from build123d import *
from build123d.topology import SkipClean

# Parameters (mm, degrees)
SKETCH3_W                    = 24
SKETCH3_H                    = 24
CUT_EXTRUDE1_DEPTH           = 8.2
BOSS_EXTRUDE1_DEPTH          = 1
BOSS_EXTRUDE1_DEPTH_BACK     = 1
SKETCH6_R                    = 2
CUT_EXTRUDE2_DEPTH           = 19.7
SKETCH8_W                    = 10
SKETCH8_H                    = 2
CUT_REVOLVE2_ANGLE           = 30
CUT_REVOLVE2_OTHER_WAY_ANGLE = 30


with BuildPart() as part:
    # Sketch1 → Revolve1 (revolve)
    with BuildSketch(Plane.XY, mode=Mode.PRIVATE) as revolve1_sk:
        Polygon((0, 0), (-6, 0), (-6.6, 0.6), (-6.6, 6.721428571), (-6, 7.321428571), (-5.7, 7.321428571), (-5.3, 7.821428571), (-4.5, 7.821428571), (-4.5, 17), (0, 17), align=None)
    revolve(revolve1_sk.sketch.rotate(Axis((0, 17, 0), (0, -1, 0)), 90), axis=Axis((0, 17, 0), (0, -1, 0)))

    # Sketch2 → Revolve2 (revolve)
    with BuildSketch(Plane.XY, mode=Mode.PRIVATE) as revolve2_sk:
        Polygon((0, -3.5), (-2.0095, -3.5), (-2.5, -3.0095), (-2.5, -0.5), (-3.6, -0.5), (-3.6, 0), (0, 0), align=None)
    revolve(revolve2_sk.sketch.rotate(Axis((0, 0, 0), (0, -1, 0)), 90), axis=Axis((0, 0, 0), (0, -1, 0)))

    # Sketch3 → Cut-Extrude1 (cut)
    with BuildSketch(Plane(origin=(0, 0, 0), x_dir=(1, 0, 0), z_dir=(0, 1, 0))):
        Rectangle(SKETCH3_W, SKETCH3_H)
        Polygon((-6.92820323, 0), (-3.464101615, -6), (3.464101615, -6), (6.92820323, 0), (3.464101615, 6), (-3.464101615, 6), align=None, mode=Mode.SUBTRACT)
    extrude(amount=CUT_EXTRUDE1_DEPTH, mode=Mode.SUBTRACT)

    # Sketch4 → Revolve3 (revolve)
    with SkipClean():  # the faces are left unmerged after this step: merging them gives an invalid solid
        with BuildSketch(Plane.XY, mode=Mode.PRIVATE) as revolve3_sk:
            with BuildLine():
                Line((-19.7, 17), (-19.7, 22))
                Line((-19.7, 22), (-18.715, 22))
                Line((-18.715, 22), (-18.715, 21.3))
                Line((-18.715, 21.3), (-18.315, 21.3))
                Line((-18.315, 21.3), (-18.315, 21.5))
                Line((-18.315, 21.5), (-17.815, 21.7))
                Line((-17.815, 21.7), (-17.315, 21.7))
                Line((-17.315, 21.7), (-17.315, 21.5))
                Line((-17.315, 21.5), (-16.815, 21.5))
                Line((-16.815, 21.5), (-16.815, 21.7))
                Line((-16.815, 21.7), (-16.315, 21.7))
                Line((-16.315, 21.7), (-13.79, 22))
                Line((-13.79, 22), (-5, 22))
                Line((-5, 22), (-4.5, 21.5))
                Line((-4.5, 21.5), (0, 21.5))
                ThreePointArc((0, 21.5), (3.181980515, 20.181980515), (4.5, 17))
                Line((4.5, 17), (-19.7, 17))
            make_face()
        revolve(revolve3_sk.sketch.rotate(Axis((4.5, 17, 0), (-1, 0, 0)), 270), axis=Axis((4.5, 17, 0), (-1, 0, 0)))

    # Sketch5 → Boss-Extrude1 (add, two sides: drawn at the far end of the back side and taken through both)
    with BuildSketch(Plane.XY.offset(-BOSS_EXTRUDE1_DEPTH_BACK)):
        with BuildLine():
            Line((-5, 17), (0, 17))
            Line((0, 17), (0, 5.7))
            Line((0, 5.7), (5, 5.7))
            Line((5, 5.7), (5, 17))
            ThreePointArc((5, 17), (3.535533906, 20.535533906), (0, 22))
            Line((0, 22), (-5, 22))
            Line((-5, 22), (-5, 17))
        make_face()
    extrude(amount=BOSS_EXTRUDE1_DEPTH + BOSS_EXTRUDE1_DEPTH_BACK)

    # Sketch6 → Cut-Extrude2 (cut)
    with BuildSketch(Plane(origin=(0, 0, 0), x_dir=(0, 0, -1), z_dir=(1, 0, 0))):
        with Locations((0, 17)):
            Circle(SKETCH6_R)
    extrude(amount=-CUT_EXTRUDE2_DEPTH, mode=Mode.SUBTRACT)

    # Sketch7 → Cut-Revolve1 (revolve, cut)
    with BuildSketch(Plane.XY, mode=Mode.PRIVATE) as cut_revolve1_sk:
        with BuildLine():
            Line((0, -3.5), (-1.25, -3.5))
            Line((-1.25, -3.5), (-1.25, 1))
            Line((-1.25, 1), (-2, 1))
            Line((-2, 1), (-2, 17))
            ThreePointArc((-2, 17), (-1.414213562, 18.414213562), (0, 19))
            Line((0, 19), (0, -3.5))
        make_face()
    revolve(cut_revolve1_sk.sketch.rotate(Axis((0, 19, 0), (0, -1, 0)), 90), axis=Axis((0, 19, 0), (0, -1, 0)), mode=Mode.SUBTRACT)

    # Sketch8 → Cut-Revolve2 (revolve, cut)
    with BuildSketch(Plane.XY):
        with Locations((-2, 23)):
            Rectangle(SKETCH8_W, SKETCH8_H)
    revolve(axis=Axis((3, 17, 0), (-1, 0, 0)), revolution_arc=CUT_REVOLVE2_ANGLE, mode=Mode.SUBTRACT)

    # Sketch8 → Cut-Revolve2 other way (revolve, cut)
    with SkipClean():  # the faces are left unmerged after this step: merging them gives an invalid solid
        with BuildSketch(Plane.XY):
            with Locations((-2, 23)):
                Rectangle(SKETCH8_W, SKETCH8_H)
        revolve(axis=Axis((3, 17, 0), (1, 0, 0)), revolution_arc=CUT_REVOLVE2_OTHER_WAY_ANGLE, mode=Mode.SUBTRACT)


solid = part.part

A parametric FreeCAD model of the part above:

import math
import FreeCAD as App
import Part
import Sketcher
from FreeCAD import Vector
Q = App.Units.Quantity


def add_polygon(sketch, points):
    """Adds a closed chain of lines whose ends are joined by coincident constraints."""
    first, n = sketch.GeometryCount, len(points)
    for a, b in zip(points, points[1:] + points[:1]):
        sketch.addGeometry(Part.LineSegment(App.Vector(*a, 0), App.Vector(*b, 0)), False)
    for i in range(n):
        sketch.addConstraint(Sketcher.Constraint("Coincident", first + i, 2, first + (i + 1) % n, 1))

doc = App.newDocument("Part")
body = doc.addObject("PartDesign::Body", "Body")

sketch1 = body.newObject("Sketcher::SketchObject", "Sketch")
sketch1.AttachmentSupport = (doc.getObject("XY_Plane"), [""])
sketch1.MapMode = "FlatFace"
add_polygon(sketch1, [(-6, 0), (0, 0), (0, 17), (-4.5, 17), (-4.5, 7.821429), (-5.3, 7.821429), (-5.7, 7.321429), (-6, 7.321429), (-6.6, 6.721429), (-6.6, 0.6)])
sketch1.addConstraint([
    Sketcher.Constraint("Horizontal", 0),
    Sketcher.Constraint("Vertical", 1),
    Sketcher.Constraint("Horizontal", 2),
    Sketcher.Constraint("Vertical", 3),
    Sketcher.Constraint("Horizontal", 4),
    Sketcher.Constraint("Horizontal", 6),
    Sketcher.Constraint("Vertical", 8),
    Sketcher.Constraint("Coincident", 0, 2, -1, 1),
    Sketcher.Constraint("Perpendicular", 7, 9),
    Sketcher.Constraint("Vertical", 6, 2, 9, 2),
    Sketcher.Constraint("Equal", 7, 9),
    Sketcher.Constraint("DistanceX", 0, 1, 0, 2, 6.0),
    Sketcher.Constraint("DistanceY", 1, 1, 1, 2, 17.0),
    Sketcher.Constraint("DistanceX", 2, 2, 2, 1, 4.5),
    Sketcher.Constraint("DistanceX", 4, 2, 4, 1, 0.8),
    Sketcher.Constraint("DistanceX", 6, 2, 6, 1, 0.3),
    Sketcher.Constraint("DistanceX", 7, 2, -1, 1, 6.6),
    Sketcher.Constraint("DistanceY", 5, 2, 4, 2, 0.5),
    Sketcher.Constraint("DistanceY", 3, 2, 3, 1, 9.178571),
])
revolution = body.newObject("PartDesign::Revolution", "Revolution")
revolution.Profile = sketch1
revolution.ReferenceAxis = (sketch1, ["V_Axis"])
revolution.Angle = 360

sketch2 = body.newObject("Sketcher::SketchObject", "Sketch001")
sketch2.AttachmentSupport = (doc.getObject("XY_Plane"), [""])
sketch2.MapMode = "FlatFace"
add_polygon(sketch2, [(-2.0095, -3.5), (0, -3.5), (0, 0), (-3.6, 0), (-3.6, -0.5), (-2.5, -0.5), (-2.5, -3.0095)])
sketch2.addConstraint([
    Sketcher.Constraint("Horizontal", 0),
    Sketcher.Constraint("Vertical", 1),
    Sketcher.Constraint("Horizontal", 2),
    Sketcher.Constraint("Vertical", 3),
    Sketcher.Constraint("Horizontal", 4),
    Sketcher.Constraint("Vertical", 5),
    Sketcher.Constraint("Coincident", 1, 2, -1, 1),
    Sketcher.Constraint("Angle", 6, Q("-45 deg")),
    Sketcher.Constraint("DistanceX", 2, 2, 2, 1, 3.6),
    Sketcher.Constraint("DistanceX", 4, 1, 4, 2, 1.1),
    Sketcher.Constraint("DistanceY", 1, 1, 1, 2, 3.5),
    Sketcher.Constraint("DistanceY", 3, 2, 3, 1, 0.5),
    Sketcher.Constraint("DistanceX", 0, 1, 0, 2, 2.0095),
])
revolution2 = body.newObject("PartDesign::Revolution", "Revolution001")
revolution2.Profile = sketch2
revolution2.ReferenceAxis = (sketch2, ["V_Axis"])
revolution2.Angle = 360

sketch3 = body.newObject("Sketcher::SketchObject", "Sketch002")
sketch3.AttachmentSupport = (doc.getObject("XZ_Plane"), [""])
sketch3.MapMode = "FlatFace"
add_polygon(sketch3, [(-12, -12), (-12, 12), (12, 12), (12, -12)])
add_polygon(sketch3, [(-3.464102, 6), (-6.928203, 0), (-3.464102, -6), (3.464102, -6), (6.928203, 0), (3.464102, 6)])
sketch3.addConstraint([
    Sketcher.Constraint("Vertical", 0),
    Sketcher.Constraint("Horizontal", 1),
    Sketcher.Constraint("Vertical", 2),
    Sketcher.Constraint("Horizontal", 3),
    Sketcher.Constraint("Horizontal", 6),
    Sketcher.Constraint("Horizontal", 9),
    Sketcher.Constraint("Symmetric", 0, 2, 2, 2, -1, 1),
    Sketcher.Constraint("Symmetric", 4, 2, 7, 2, -1, 1),
    Sketcher.Constraint("Symmetric", 5, 2, 8, 2, -1, 1),
    Sketcher.Constraint("PointOnObject", 4, 2, -1),
    Sketcher.Constraint("Parallel", 4, 7),
    Sketcher.Constraint("Vertical", 6, 2, 8, 2),
    Sketcher.Constraint("Equal", 3, 0),
    Sketcher.Constraint("DistanceX", 1, 1, 1, 2, 24.0),
    Sketcher.Constraint("Angle", 4, Q("-120 deg")),
    Sketcher.Constraint("DistanceY", 5, 2, -1, 1, 6.0),
    Sketcher.Constraint("DistanceX", 5, 2, -1, 1, 3.464102),
])
pocket1 = body.newObject("PartDesign::Pocket", "Pocket")
pocket1.Profile = sketch3
pocket1.Length = 8.2

sketch4 = body.newObject("Sketcher::SketchObject", "Sketch003")
sketch4.AttachmentSupport = (doc.getObject("XY_Plane"), [""])
sketch4.MapMode = "FlatFace"
sketch4.addGeometry([
    Part.LineSegment(Vector(-19.7, 22, 0), Vector(-19.7, 17, 0)),
    Part.LineSegment(Vector(-19.7, 17, 0), Vector(4.5, 17, 0)),
    Part.ArcOfCircle(Part.Circle(Vector(0, 17, 0), Vector(0, 0, 1), 4.5), math.radians(0), math.radians(90)),
    Part.LineSegment(Vector(0, 21.5, 0), Vector(-4.5, 21.5, 0)),
    Part.LineSegment(Vector(-4.5, 21.5, 0), Vector(-5, 22, 0)),
    Part.LineSegment(Vector(-5, 22, 0), Vector(-13.79, 22, 0)),
    Part.LineSegment(Vector(-13.79, 22, 0), Vector(-16.315, 21.7, 0)),
    Part.LineSegment(Vector(-16.315, 21.7, 0), Vector(-16.815, 21.7, 0)),
    Part.LineSegment(Vector(-16.815, 21.7, 0), Vector(-16.815, 21.5, 0)),
    Part.LineSegment(Vector(-16.815, 21.5, 0), Vector(-17.315, 21.5, 0)),
    Part.LineSegment(Vector(-17.315, 21.5, 0), Vector(-17.315, 21.7, 0)),
    Part.LineSegment(Vector(-17.315, 21.7, 0), Vector(-17.815, 21.7, 0)),
    Part.LineSegment(Vector(-17.815, 21.7, 0), Vector(-18.315, 21.5, 0)),
    Part.LineSegment(Vector(-18.315, 21.5, 0), Vector(-18.315, 21.3, 0)),
    Part.LineSegment(Vector(-18.315, 21.3, 0), Vector(-18.715, 21.3, 0)),
    Part.LineSegment(Vector(-18.715, 21.3, 0), Vector(-18.715, 22, 0)),
    Part.LineSegment(Vector(-18.715, 22, 0), Vector(-19.7, 22, 0)),
], False)
sketch4.addGeometry(Part.LineSegment(Vector(4.5, 17, 0), Vector(-19.7, 17, 0)), True)
sketch4.addConstraint([
    Sketcher.Constraint("Coincident", 0, 2, 1, 1),
    Sketcher.Constraint("Coincident", 1, 2, 2, 1),
    Sketcher.Constraint("Tangent", 2, 2, 3, 1),
    Sketcher.Constraint("Coincident", 3, 2, 4, 1),
    Sketcher.Constraint("Coincident", 4, 2, 5, 1),
    Sketcher.Constraint("Coincident", 5, 2, 6, 1),
    Sketcher.Constraint("Coincident", 6, 2, 7, 1),
    Sketcher.Constraint("Coincident", 7, 2, 8, 1),
    Sketcher.Constraint("Coincident", 8, 2, 9, 1),
    Sketcher.Constraint("Coincident", 9, 2, 10, 1),
    Sketcher.Constraint("Coincident", 10, 2, 11, 1),
    Sketcher.Constraint("Coincident", 11, 2, 12, 1),
    Sketcher.Constraint("Coincident", 12, 2, 13, 1),
    Sketcher.Constraint("Coincident", 13, 2, 14, 1),
    Sketcher.Constraint("Coincident", 14, 2, 15, 1),
    Sketcher.Constraint("Coincident", 15, 2, 16, 1),
    Sketcher.Constraint("Coincident", 16, 2, 0, 1),
    Sketcher.Constraint("Vertical", 0),
    Sketcher.Constraint("Horizontal", 1),
    Sketcher.Constraint("Horizontal", 3),
    Sketcher.Constraint("Horizontal", 5),
    Sketcher.Constraint("Horizontal", 7),
    Sketcher.Constraint("Vertical", 8),
    Sketcher.Constraint("Horizontal", 9),
    Sketcher.Constraint("Vertical", 10),
    Sketcher.Constraint("Horizontal", 11),
    Sketcher.Constraint("Vertical", 13),
    Sketcher.Constraint("Horizontal", 14),
    Sketcher.Constraint("Vertical", 15),
    Sketcher.Constraint("Horizontal", 16),
    Sketcher.Constraint("Horizontal", 17),
    Sketcher.Constraint("Coincident", 17, 1, 1, 2),
    Sketcher.Constraint("PointOnObject", 2, 3, -2),
    Sketcher.Constraint("Horizontal", 2, 3, 0, 2),
    Sketcher.Constraint("Horizontal", 3, 2, 8, 2),
    Sketcher.Constraint("Horizontal", 7, 2, 10, 2),
    Sketcher.Constraint("Horizontal", 9, 2, 12, 2),
    Sketcher.Constraint("Horizontal", 5, 2, 15, 2),
    Sketcher.Constraint("Vertical", 16, 2, 17, 2),
    Sketcher.Constraint("Equal", 7, 9),
    Sketcher.Constraint("Equal", 9, 11),
    Sketcher.Constraint("Equal", 10, 13),
    Sketcher.Constraint("Radius", 2, 4.5),
    Sketcher.Constraint("DistanceY", 0, 2, 0, 1, 5.0),
    Sketcher.Constraint("Angle", 4, Q("135 deg")),
    Sketcher.Constraint("DistanceX", 1, 1, 1, 2, 24.2),
    Sketcher.Constraint("DistanceX", 3, 2, 3, 1, 4.5),
    Sketcher.Constraint("DistanceX", 7, 2, 7, 1, 0.5),
    Sketcher.Constraint("DistanceX", 14, 2, 14, 1, 0.4),
    Sketcher.Constraint("DistanceY", 8, 2, 8, 1, 0.2),
    Sketcher.Constraint("DistanceY", -1, 1, 2, 3, 17.0),
    Sketcher.Constraint("DistanceX", 12, 2, 9, 2, 1.0),
    Sketcher.Constraint("DistanceX", 5, 2, 5, 1, 8.79),
    Sketcher.Constraint("DistanceX", 16, 2, 16, 1, 0.985),
])
revolution3 = body.newObject("PartDesign::Revolution", "Revolution002")
revolution3.Profile = sketch4
revolution3.ReferenceAxis = (sketch4, ["Axis0"])
revolution3.Angle = 360

sketch5 = body.newObject("Sketcher::SketchObject", "Sketch004")
sketch5.AttachmentSupport = (doc.getObject("XY_Plane"), [""])
sketch5.MapMode = "FlatFace"
sketch5.addGeometry([
    Part.LineSegment(Vector(-5, 17, 0), Vector(0, 17, 0)),
    Part.LineSegment(Vector(0, 17, 0), Vector(0, 5.7, 0)),
    Part.LineSegment(Vector(0, 5.7, 0), Vector(5, 5.7, 0)),
    Part.LineSegment(Vector(5, 5.7, 0), Vector(5, 17, 0)),
    Part.ArcOfCircle(Part.Circle(Vector(0, 17, 0), Vector(0, 0, 1), 5), math.radians(0), math.radians(90)),
    Part.LineSegment(Vector(0, 22, 0), Vector(-5, 22, 0)),
    Part.LineSegment(Vector(-5, 22, 0), Vector(-5, 17, 0)),
], False)
sketch5.addConstraint([
    Sketcher.Constraint("Coincident", 0, 2, 1, 1),
    Sketcher.Constraint("Coincident", 1, 2, 2, 1),
    Sketcher.Constraint("Coincident", 2, 2, 3, 1),
    Sketcher.Constraint("Tangent", 3, 2, 4, 1),
    Sketcher.Constraint("Tangent", 4, 2, 5, 1),
    Sketcher.Constraint("Coincident", 5, 2, 6, 1),
    Sketcher.Constraint("Coincident", 6, 2, 0, 1),
    Sketcher.Constraint("Horizontal", 0),
    Sketcher.Constraint("Vertical", 1),
    Sketcher.Constraint("Horizontal", 2),
    Sketcher.Constraint("Vertical", 3),
    Sketcher.Constraint("Horizontal", 5),
    Sketcher.Constraint("Vertical", 6),
    Sketcher.Constraint("Coincident", 0, 2, 4, 3),
    Sketcher.Constraint("PointOnObject", 4, 3, -2),
    Sketcher.Constraint("Equal", 0, 2),
    Sketcher.Constraint("Radius", 4, 5.0),
    Sketcher.Constraint("DistanceY", 1, 2, 1, 1, 11.3),
    Sketcher.Constraint("DistanceY", -1, 1, 4, 3, 17.0),
])
pad1 = body.newObject("PartDesign::Pad", "Pad")
pad1.Profile = sketch5
pad1.Type = "TwoLengths"
pad1.Length = 1
pad1.Length2 = 1

sketch6 = body.newObject("Sketcher::SketchObject", "Sketch005")
sketch6.AttachmentSupport = (doc.getObject("YZ_Plane"), [""])
sketch6.MapMode = "FlatFace"
sketch6.addGeometry(Part.Circle(Vector(17, 0, 0), Vector(0, 0, 1), 2), False)
sketch6.addConstraint([
    Sketcher.Constraint("PointOnObject", 0, 3, -1),
    Sketcher.Constraint("Diameter", 0, 4.0),
    Sketcher.Constraint("DistanceX", -1, 1, 0, 3, 17.0),
])
pocket2 = body.newObject("PartDesign::Pocket", "Pocket001")
pocket2.Profile = sketch6
pocket2.Length = 19.7

sketch7 = body.newObject("Sketcher::SketchObject", "Sketch006")
sketch7.AttachmentSupport = (doc.getObject("XY_Plane"), [""])
sketch7.MapMode = "FlatFace"
sketch7.addGeometry([
    Part.LineSegment(Vector(-1.25, -3.5, 0), Vector(0, -3.5, 0)),
    Part.LineSegment(Vector(0, -3.5, 0), Vector(0, 19, 0)),
    Part.ArcOfCircle(Part.Circle(Vector(0, 17, 0), Vector(0, 0, 1), 2), math.radians(90), math.radians(180)),
    Part.LineSegment(Vector(-2, 17, 0), Vector(-2, 1, 0)),
    Part.LineSegment(Vector(-2, 1, 0), Vector(-1.25, 1, 0)),
    Part.LineSegment(Vector(-1.25, 1, 0), Vector(-1.25, -3.5, 0)),
], False)
sketch7.addConstraint([
    Sketcher.Constraint("Coincident", 0, 2, 1, 1),
    Sketcher.Constraint("Coincident", 1, 2, 2, 1),
    Sketcher.Constraint("Tangent", 2, 2, 3, 1),
    Sketcher.Constraint("Coincident", 3, 2, 4, 1),
    Sketcher.Constraint("Coincident", 4, 2, 5, 1),
    Sketcher.Constraint("Coincident", 5, 2, 0, 1),
    Sketcher.Constraint("Horizontal", 0),
    Sketcher.Constraint("Vertical", 1),
    Sketcher.Constraint("Vertical", 3),
    Sketcher.Constraint("Horizontal", 4),
    Sketcher.Constraint("Vertical", 5),
    Sketcher.Constraint("PointOnObject", 2, 3, -2),
    Sketcher.Constraint("PointOnObject", 0, 2, -2),
    Sketcher.Constraint("Radius", 2, 2.0),
    Sketcher.Constraint("DistanceY", 3, 2, 3, 1, 16.0),
    Sketcher.Constraint("DistanceY", 1, 1, 1, 2, 22.5),
    Sketcher.Constraint("DistanceY", -1, 1, 2, 3, 17.0),
    Sketcher.Constraint("DistanceX", 0, 1, 0, 2, 1.25),
])
groove = body.newObject("PartDesign::Groove", "Groove")
groove.Profile = sketch7
groove.ReferenceAxis = (sketch7, ["V_Axis"])
groove.Angle = 360

sketch8 = body.newObject("Sketcher::SketchObject", "Sketch007")
sketch8.AttachmentSupport = (doc.getObject("XY_Plane"), [""])
sketch8.MapMode = "FlatFace"
add_polygon(sketch8, [(-7, 24), (-7, 22), (3, 22), (3, 24)])
sketch8.addGeometry(Part.LineSegment(Vector(3, 17, 0), Vector(-7, 17, 0)), True)
sketch8.addConstraint([
    Sketcher.Constraint("Vertical", 0),
    Sketcher.Constraint("Horizontal", 1),
    Sketcher.Constraint("Vertical", 2),
    Sketcher.Constraint("Horizontal", 3),
    Sketcher.Constraint("Horizontal", 4),
    Sketcher.Constraint("Vertical", 2, 2, 4, 1),
    Sketcher.Constraint("Vertical", 3, 2, 4, 2),
    Sketcher.Constraint("DistanceX", 1, 1, 1, 2, 10.0),
    Sketcher.Constraint("DistanceY", 0, 2, 0, 1, 2.0),
    Sketcher.Constraint("DistanceX", 0, 2, -1, 1, 7.0),
    Sketcher.Constraint("DistanceY", -1, 1, 0, 2, 22.0),
    Sketcher.Constraint("DistanceY", -1, 1, 4, 1, 17.0),
])
groove2 = body.newObject("PartDesign::Groove", "Groove001")
groove2.Profile = sketch8
groove2.ReferenceAxis = (sketch8, ["Axis0"])
groove2.Angle = 30

sketch9 = body.newObject("Sketcher::SketchObject", "Sketch008")
sketch9.AttachmentSupport = (doc.getObject("XY_Plane"), [""])
sketch9.MapMode = "FlatFace"
add_polygon(sketch9, [(-7, 24), (-7, 22), (3, 22), (3, 24)])
sketch9.addGeometry(Part.LineSegment(Vector(-7, 17, 0), Vector(3, 17, 0)), True)
sketch9.addConstraint([
    Sketcher.Constraint("Vertical", 0),
    Sketcher.Constraint("Horizontal", 1),
    Sketcher.Constraint("Vertical", 2),
    Sketcher.Constraint("Horizontal", 3),
    Sketcher.Constraint("Horizontal", 4),
    Sketcher.Constraint("Vertical", 3, 2, 4, 1),
    Sketcher.Constraint("Vertical", 2, 2, 4, 2),
    Sketcher.Constraint("DistanceX", 1, 1, 1, 2, 10.0),
    Sketcher.Constraint("DistanceY", 0, 2, 0, 1, 2.0),
    Sketcher.Constraint("DistanceX", 0, 2, -1, 1, 7.0),
    Sketcher.Constraint("DistanceY", -1, 1, 0, 2, 22.0),
    Sketcher.Constraint("DistanceY", -1, 1, 4, 1, 17.0),
])
groove3 = body.newObject("PartDesign::Groove", "Groove002")
groove3.Profile = sketch9
groove3.ReferenceAxis = (sketch9, ["Axis0"])
groove3.Angle = 30

doc.recompute()
